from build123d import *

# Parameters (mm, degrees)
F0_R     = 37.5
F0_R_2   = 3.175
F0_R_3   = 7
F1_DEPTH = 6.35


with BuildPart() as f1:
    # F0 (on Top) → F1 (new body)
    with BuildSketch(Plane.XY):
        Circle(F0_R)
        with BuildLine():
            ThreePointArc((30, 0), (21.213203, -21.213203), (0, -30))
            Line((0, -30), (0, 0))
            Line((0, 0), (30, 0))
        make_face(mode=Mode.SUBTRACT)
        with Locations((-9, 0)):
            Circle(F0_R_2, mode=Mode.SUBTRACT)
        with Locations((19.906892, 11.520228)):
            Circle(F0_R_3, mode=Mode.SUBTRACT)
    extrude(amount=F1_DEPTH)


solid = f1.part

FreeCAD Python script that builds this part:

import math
import FreeCAD as App
import Part
import Sketcher
from FreeCAD import Vector

doc = App.newDocument("Part")
body = doc.addObject("PartDesign::Body", "Body")

sketch1 = body.newObject("Sketcher::SketchObject", "Sketch")
sketch1.AttachmentSupport = (doc.getObject("XY_Plane"), [""])
sketch1.MapMode = "FlatFace"
sketch1.addGeometry(Part.Circle(Vector(0, 0, 0), Vector(0, 0, 1), 37.5), False)
sketch1.addGeometry(Part.LineSegment(Vector(0, 0, 0), Vector(30, 0, 0)), False)
sketch1.addGeometry(Part.ArcOfCircle(Part.Circle(Vector(0, 0, 0), Vector(0, 0, 1), 30), math.radians(-90), math.radians(0)), False)
sketch1.addGeometry(Part.LineSegment(Vector(0, -30, 0), Vector(0, 0, 0)), False)
sketch1.addGeometry(Part.Circle(Vector(-9, 0, 0), Vector(0, 0, 1), 3.2), False)
sketch1.addGeometry(Part.Circle(Vector(19.9, 11.5, 0), Vector(0, 0, 1), 7), False)
sketch1.addConstraint(Sketcher.Constraint("Coincident", 1, 2, 2, 2))
sketch1.addConstraint(Sketcher.Constraint("Coincident", 2, 1, 3, 1))
sketch1.addConstraint(Sketcher.Constraint("Coincident", 3, 2, 1, 1))
sketch1.addConstraint(Sketcher.Constraint("Horizontal", 1))
sketch1.addConstraint(Sketcher.Constraint("Vertical", 3))
sketch1.addConstraint(Sketcher.Constraint("Coincident", 0, 3, -1, 1))
sketch1.addConstraint(Sketcher.Constraint("Coincident", 2, 3, -1, 1))
sketch1.addConstraint(Sketcher.Constraint("Coincident", 3, 2, -1, 1))
sketch1.addConstraint(Sketcher.Constraint("PointOnObject", 4, 3, -1))
sketch1.addConstraint(Sketcher.Constraint("Diameter", 0, 75.0))
sketch1.addConstraint(Sketcher.Constraint("Diameter", 5, 14.0))
sketch1.addConstraint(Sketcher.Constraint("Radius", 2, 30.000001))
sketch1.addConstraint(Sketcher.Constraint("Diameter", 4, 6.35))
sketch1.addConstraint(Sketcher.Constraint("DistanceX", 4, 3, -1, 1, 9.0))
sketch1.addConstraint(Sketcher.Constraint("DistanceX", -1, 1, 5, 3, 19.906892))
sketch1.addConstraint(Sketcher.Constraint("DistanceY", -1, 1, 5, 3, 11.520228))
pad1 = body.newObject("PartDesign::Pad", "Pad")
pad1.Profile = sketch1
pad1.Length = 6.35

doc.recompute()
